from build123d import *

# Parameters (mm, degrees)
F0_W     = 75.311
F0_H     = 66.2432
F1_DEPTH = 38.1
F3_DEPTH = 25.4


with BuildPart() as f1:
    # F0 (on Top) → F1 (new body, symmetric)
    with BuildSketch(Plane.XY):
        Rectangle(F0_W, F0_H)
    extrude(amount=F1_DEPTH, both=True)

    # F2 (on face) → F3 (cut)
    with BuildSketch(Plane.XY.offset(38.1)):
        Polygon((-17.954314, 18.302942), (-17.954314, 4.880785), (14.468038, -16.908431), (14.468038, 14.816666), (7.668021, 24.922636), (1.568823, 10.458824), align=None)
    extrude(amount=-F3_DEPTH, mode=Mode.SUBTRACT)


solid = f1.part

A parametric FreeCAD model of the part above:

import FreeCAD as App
import Part
import Sketcher

V = App.Vector
Q = App.Units.Quantity


def add_polygon(sketch, points):
    """Adds a closed chain of lines whose ends are joined by coincident constraints."""
    first, n = sketch.GeometryCount, len(points)
    for a, b in zip(points, points[1:] + points[:1]):
        sketch.addGeometry(Part.LineSegment(App.Vector(*a, 0), App.Vector(*b, 0)), False)
    for i in range(n):
        sketch.addConstraint(Sketcher.Constraint("Coincident", first + i, 2, first + (i + 1) % n, 1))

doc = App.newDocument("Part")
params = doc.addObject("Spreadsheet::Sheet", "Params")
for row, (alias, value) in enumerate([
    ("sketch1_width", "2.965 in"),
    ("sketch1_height", "2.608 in"),
    ("pad1_length", "3 in"),
    ("sketch2_length", "0.618 in"),
    ("pocket1_length", "1 in"),
], start=1):
    params.set(f"A{row}", alias)
    params.set(f"B{row}", "=" + value)
    params.setAlias(f"B{row}", alias)

body = doc.addObject("PartDesign::Body", "Body")

# Sketch on XY plane
sketch1 = body.newObject("Sketcher::SketchObject", "Sketch")
sketch1.AttachmentSupport = (doc.getObject("XY_Plane"), [""])
sketch1.MapMode = "FlatFace"
add_polygon(sketch1, [(-38, 33), (-38, -33), (38, -33), (38, 33)])  # lines 0-3
sketch1.addConstraint(Sketcher.Constraint("Vertical", 0))
sketch1.addConstraint(Sketcher.Constraint("Horizontal", 1))
sketch1.addConstraint(Sketcher.Constraint("Vertical", 2))
sketch1.addConstraint(Sketcher.Constraint("Horizontal", 3))
sketch1.addConstraint(Sketcher.Constraint("Symmetric", 0, 2, 2, 2, -1, 1))
sketch1.addConstraint(Sketcher.Constraint("DistanceX", 1, 1, 1, 2, Q("2.965 in")))
sketch1.addConstraint(Sketcher.Constraint("DistanceY", 0, 2, 0, 1, Q("2.608 in")))
sketch1.setExpression("Constraints[9]", "Params.sketch1_width")
sketch1.setExpression("Constraints[10]", "Params.sketch1_height")
pad1 = body.newObject("PartDesign::Pad", "Pad")
pad1.Profile = sketch1
pad1.setExpression("Length", "Params.pad1_length")
pad1.Midplane = True

# Sketch on XY plane
sketch2 = body.newObject("Sketcher::SketchObject", "Sketch001")
sketch2.AttachmentSupport = (doc.getObject("XY_Plane"), [""])
sketch2.MapMode = "FlatFace"
sketch2.AttachmentOffset = App.Placement(V(0, 0, 1.5 * 25.4), App.Rotation())
add_polygon(sketch2, [(-18, 18), (-18, 5), (14, -17), (14, 15), (8, 25), (2, 10)])  # lines 0-5
sketch2.addConstraint(Sketcher.Constraint("Vertical", 0))
sketch2.addConstraint(Sketcher.Constraint("Vertical", 2))
sketch2.addConstraint(Sketcher.Constraint("Distance", 4, Q("0.618 in")))
sketch2.addConstraint(Sketcher.Constraint("DistanceX", 4, 2, 3, 2, 6.099198))
sketch2.addConstraint(Sketcher.Constraint("Distance", 1, 39.063779))
sketch2.addConstraint(Sketcher.Constraint("DistanceY", 0, 2, 0, 1, 13.422157))
sketch2.addConstraint(Sketcher.Constraint("DistanceY", 2, 1, 2, 2, 31.725097))
sketch2.addConstraint(Sketcher.Constraint("DistanceY", 1, 2, -1, 1, 16.908431))
sketch2.addConstraint(Sketcher.Constraint("DistanceX", -1, 1, 3, 2, 7.668021))
sketch2.addConstraint(Sketcher.Constraint("DistanceY", 0, 2, 2, 2, 9.935881))
sketch2.addConstraint(Sketcher.Constraint("DistanceY", 2, 2, 3, 2, 10.10597))
sketch2.addConstraint(Sketcher.Constraint("Distance", 3, 12.180758))
sketch2.setExpression("Constraints[8]", "Params.sketch2_length")
pocket1 = body.newObject("PartDesign::Pocket", "Pocket")
pocket1.Profile = sketch2
pocket1.setExpression("Length", "Params.pocket1_length")

doc.recompute()
